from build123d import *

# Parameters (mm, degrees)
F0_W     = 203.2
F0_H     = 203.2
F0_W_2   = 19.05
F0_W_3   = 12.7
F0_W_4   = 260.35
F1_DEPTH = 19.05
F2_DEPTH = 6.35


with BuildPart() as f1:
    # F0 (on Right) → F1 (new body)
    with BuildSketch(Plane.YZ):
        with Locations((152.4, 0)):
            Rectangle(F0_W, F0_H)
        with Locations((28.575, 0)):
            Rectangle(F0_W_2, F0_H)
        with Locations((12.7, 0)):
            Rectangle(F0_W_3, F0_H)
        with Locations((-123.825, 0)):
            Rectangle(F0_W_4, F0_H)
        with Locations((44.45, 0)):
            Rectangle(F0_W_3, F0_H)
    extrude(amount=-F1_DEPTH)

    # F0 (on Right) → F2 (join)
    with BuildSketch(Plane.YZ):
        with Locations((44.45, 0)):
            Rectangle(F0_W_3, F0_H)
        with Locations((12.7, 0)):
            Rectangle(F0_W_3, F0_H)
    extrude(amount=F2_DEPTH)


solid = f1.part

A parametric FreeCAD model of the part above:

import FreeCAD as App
import Part
import Sketcher
from FreeCAD import Vector
Q = App.Units.Quantity

doc = App.newDocument("Part")
params = doc.addObject("Spreadsheet::Sheet", "Params")
for row, (alias, value) in enumerate([
    ("sketch1_width", "20 in"),
    ("sketch1_height", "8 in"),
    ("pad1_length", "0.75 in"),
    ("sketch2_height", "8 in"),
    ("sketch2_width", "0.5 in"),
    ("pad2_length", "0.25 in"),
], start=1):
    params.set(f"A{row}", alias)
    params.set(f"B{row}", "=" + value)
    params.setAlias(f"B{row}", alias)

body = doc.addObject("PartDesign::Body", "Body")

# Sketch on YZ plane
sketch1 = body.newObject("Sketcher::SketchObject", "Sketch")
sketch1.AttachmentSupport = (doc.getObject("YZ_Plane"), [""])
sketch1.MapMode = "FlatFace"
sketch1.addGeometry([
    Part.LineSegment(Vector(254, -102, 0), Vector(254, 102, 0)),
    Part.LineSegment(Vector(254, 102, 0), Vector(-254, 102, 0)),
    Part.LineSegment(Vector(-254, 102, 0), Vector(-254, -102, 0)),
    Part.LineSegment(Vector(-254, -102, 0), Vector(254, -102, 0)),
], False)
sketch1.addConstraint([
    Sketcher.Constraint("Coincident", 0, 2, 1, 1),
    Sketcher.Constraint("Coincident", 1, 2, 2, 1),
    Sketcher.Constraint("Coincident", 2, 2, 3, 1),
    Sketcher.Constraint("Coincident", 3, 2, 0, 1),
    Sketcher.Constraint("Vertical", 0),
    Sketcher.Constraint("Horizontal", 1),
    Sketcher.Constraint("Vertical", 2),
    Sketcher.Constraint("Horizontal", 3),
    Sketcher.Constraint("Symmetric", 0, 2, 2, 2, -1, 1),
    Sketcher.Constraint("DistanceX", 1, 2, 1, 1, Q("20 in")),
    Sketcher.Constraint("DistanceY", 0, 1, 0, 2, Q("8 in")),
])
sketch1.setExpression("Constraints[9]", "Params.sketch1_width")
sketch1.setExpression("Constraints[10]", "Params.sketch1_height")
pad1 = body.newObject("PartDesign::Pad", "Pad")
pad1.Profile = sketch1
pad1.setExpression("Length", "Params.pad1_length")
pad1.Reversed = True

# Sketch on YZ plane
sketch2 = body.newObject("Sketcher::SketchObject", "Sketch001")
sketch2.AttachmentSupport = (doc.getObject("YZ_Plane"), [""])
sketch2.MapMode = "FlatFace"
sketch2.addGeometry([
    Part.LineSegment(Vector(38, 102, 0), Vector(38, -102, 0)),  # 0
    Part.LineSegment(Vector(38, -102, 0), Vector(51, -102, 0)),  # 1
    Part.LineSegment(Vector(51, -102, 0), Vector(51, 102, 0)),  # 2
    Part.LineSegment(Vector(51, 102, 0), Vector(38, 102, 0)),  # 3
    Part.LineSegment(Vector(6, 102, 0), Vector(6, -102, 0)),  # 4
    Part.LineSegment(Vector(6, -102, 0), Vector(19, -102, 0)),  # 5
    Part.LineSegment(Vector(19, -102, 0), Vector(19, 102, 0)),  # 6
    Part.LineSegment(Vector(19, 102, 0), Vector(6, 102, 0)),  # 7
], False)
sketch2.addConstraint([
    Sketcher.Constraint("Coincident", 0, 2, 1, 1),
    Sketcher.Constraint("Coincident", 1, 2, 2, 1),
    Sketcher.Constraint("Coincident", 2, 2, 3, 1),
    Sketcher.Constraint("Coincident", 3, 2, 0, 1),
    Sketcher.Constraint("Coincident", 4, 2, 5, 1),
    Sketcher.Constraint("Coincident", 5, 2, 6, 1),
    Sketcher.Constraint("Coincident", 6, 2, 7, 1),
    Sketcher.Constraint("Coincident", 7, 2, 4, 1),
    Sketcher.Constraint("Vertical", 0),
    Sketcher.Constraint("Horizontal", 1),
    Sketcher.Constraint("Vertical", 2),
    Sketcher.Constraint("Horizontal", 3),
    Sketcher.Constraint("Vertical", 4),
    Sketcher.Constraint("Horizontal", 5),
    Sketcher.Constraint("Vertical", 6),
    Sketcher.Constraint("Horizontal", 7),
    Sketcher.Constraint("Horizontal", 1, 2, 4, 2),
    Sketcher.Constraint("Horizontal", 3, 2, 6, 2),
    Sketcher.Constraint("Equal", 3, 5),
    Sketcher.Constraint("DistanceY", 0, 2, 0, 1, Q("8 in")),
    Sketcher.Constraint("DistanceX", 1, 1, 1, 2, Q("0.5 in")),
    Sketcher.Constraint("DistanceY", 0, 2, -1, 1, Q("4 in")),
    Sketcher.Constraint("DistanceX", -1, 1, 1, 2, Q("2 in")),
    Sketcher.Constraint("DistanceX", -1, 1, 4, 2, Q("0.25 in")),
])
sketch2.setExpression("Constraints[19]", "Params.sketch2_height")
sketch2.setExpression("Constraints[20]", "Params.sketch2_width")
pad2 = body.newObject("PartDesign::Pad", "Pad001")
pad2.Profile = sketch2
pad2.setExpression("Length", "Params.pad2_length")

doc.recompute()
